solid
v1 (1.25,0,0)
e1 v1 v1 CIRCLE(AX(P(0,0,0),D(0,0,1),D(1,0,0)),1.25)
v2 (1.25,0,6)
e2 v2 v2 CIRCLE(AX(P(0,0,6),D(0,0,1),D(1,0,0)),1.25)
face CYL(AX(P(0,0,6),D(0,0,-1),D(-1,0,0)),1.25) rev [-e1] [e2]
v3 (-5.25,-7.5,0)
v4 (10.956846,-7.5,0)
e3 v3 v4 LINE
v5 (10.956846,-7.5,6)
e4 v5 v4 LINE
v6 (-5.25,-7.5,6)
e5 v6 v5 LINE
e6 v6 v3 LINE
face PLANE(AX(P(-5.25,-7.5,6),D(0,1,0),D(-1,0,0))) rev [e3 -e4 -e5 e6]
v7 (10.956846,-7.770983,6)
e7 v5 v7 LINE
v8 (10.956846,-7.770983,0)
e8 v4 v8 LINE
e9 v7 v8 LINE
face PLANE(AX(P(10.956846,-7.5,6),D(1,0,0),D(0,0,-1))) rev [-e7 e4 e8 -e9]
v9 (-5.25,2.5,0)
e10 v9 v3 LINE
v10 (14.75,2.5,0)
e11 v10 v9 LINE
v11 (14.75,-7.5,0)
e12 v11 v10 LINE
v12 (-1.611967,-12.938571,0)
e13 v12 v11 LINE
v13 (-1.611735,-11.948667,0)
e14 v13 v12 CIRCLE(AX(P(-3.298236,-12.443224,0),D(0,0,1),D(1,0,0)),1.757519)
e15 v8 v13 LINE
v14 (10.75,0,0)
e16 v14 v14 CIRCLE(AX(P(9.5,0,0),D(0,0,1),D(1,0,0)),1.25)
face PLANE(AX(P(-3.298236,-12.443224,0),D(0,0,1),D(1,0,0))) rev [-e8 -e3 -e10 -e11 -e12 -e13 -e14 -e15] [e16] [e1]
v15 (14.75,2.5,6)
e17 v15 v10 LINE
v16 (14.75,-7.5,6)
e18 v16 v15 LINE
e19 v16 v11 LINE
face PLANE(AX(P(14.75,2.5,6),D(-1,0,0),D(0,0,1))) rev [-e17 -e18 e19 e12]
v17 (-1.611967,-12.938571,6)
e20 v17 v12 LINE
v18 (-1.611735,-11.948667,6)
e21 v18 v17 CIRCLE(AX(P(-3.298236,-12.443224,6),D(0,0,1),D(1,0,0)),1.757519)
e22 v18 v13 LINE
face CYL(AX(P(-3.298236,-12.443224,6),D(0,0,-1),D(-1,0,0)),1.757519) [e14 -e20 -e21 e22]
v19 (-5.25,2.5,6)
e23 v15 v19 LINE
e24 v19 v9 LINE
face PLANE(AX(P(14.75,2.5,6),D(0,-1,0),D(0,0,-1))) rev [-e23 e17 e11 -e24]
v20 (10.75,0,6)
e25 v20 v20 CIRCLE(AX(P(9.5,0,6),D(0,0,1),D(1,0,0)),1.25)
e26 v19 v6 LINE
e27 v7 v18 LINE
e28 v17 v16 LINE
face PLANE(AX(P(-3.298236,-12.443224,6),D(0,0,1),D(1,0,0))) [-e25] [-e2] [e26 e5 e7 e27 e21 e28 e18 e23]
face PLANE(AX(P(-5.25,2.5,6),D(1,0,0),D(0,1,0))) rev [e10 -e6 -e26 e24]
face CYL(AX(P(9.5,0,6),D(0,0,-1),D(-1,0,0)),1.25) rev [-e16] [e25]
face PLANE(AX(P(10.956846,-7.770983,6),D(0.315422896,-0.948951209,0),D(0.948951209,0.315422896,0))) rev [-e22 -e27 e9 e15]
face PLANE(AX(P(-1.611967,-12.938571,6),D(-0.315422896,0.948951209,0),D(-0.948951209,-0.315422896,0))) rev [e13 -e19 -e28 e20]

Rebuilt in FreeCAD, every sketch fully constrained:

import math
import FreeCAD as App
import Part
import Sketcher
Q = App.Units.Quantity

doc = App.newDocument("Part")
params = doc.addObject("Spreadsheet::Sheet", "Params")
for row, (alias, value) in enumerate([
    ("sketch1_diameter", "2.5 mm"),
    ("sketch1_width", "20 mm"),
    ("sketch1_height", "10 mm"),
    ("pad1_length", "6 mm"),
], start=1):
    params.set(f"A{row}", alias)
    params.set(f"B{row}", "=" + value)
    params.setAlias(f"B{row}", alias)

body = doc.addObject("PartDesign::Body", "Body")

sketch1 = body.newObject("Sketcher::SketchObject", "Sketch")
sketch1.AttachmentSupport = (doc.getObject("XY_Plane"), [""])
sketch1.MapMode = "FlatFace"
sketch1.addGeometry([
    Part.LineSegment(App.Vector(14.75, 2.5, 0), App.Vector(-5.25, 2.5, 0)),
    Part.LineSegment(App.Vector(-5.25, 2.5, 0), App.Vector(-5.25, -7.5, 0)),
    Part.LineSegment(App.Vector(-5.25, -7.5, 0), App.Vector(10.96, -7.5, 0)),
    Part.LineSegment(App.Vector(10.96, -7.5, 0), App.Vector(10.96, -7.77, 0)),
    Part.LineSegment(App.Vector(10.96, -7.77, 0), App.Vector(-1.61, -11.95, 0)),
    Part.ArcOfCircle(Part.Circle(App.Vector(-3.3, -12.44, 0), App.Vector(0, 0, 1), 1.76), math.radians(16), math.radians(344)),
    Part.LineSegment(App.Vector(-1.61, -12.94, 0), App.Vector(14.75, -7.5, 0)),
    Part.LineSegment(App.Vector(14.75, -7.5, 0), App.Vector(14.75, 2.5, 0)),
    Part.Circle(App.Vector(0, 0, 0), App.Vector(0, 0, 1), 1.25),
    Part.Circle(App.Vector(9.5, 0, 0), App.Vector(0, 0, 1), 1.25),
], False)
sketch1.addConstraint([
    Sketcher.Constraint("Coincident", 0, 2, 1, 1),
    Sketcher.Constraint("Coincident", 1, 2, 2, 1),
    Sketcher.Constraint("Coincident", 2, 2, 3, 1),
    Sketcher.Constraint("Coincident", 3, 2, 4, 1),
    Sketcher.Constraint("Coincident", 4, 2, 5, 1),
    Sketcher.Constraint("Coincident", 5, 2, 6, 1),
    Sketcher.Constraint("Coincident", 6, 2, 7, 1),
    Sketcher.Constraint("Coincident", 7, 2, 0, 1),
    Sketcher.Constraint("Horizontal", 0),
    Sketcher.Constraint("Vertical", 1),
    Sketcher.Constraint("Horizontal", 2),
    Sketcher.Constraint("Vertical", 3),
    Sketcher.Constraint("Vertical", 7),
    Sketcher.Constraint("Coincident", 8, 3, -1, 1),
    Sketcher.Constraint("Equal", 8, 9),
    Sketcher.Constraint("PointOnObject", 9, 3, -1),
    Sketcher.Constraint("Parallel", 4, 6),
    Sketcher.Constraint("Horizontal", 2, 2, 6, 2),
    Sketcher.Constraint("Diameter", 8, Q("2.5 mm")),
    Sketcher.Constraint("DistanceX", 0, 2, 0, 1, Q("20 mm")),
    Sketcher.Constraint("DistanceY", 1, 2, 1, 1, Q("10 mm")),
    Sketcher.Constraint("DistanceX", -1, 1, 9, 3, Q("9.5 mm")),
    Sketcher.Constraint("DistanceY", -1, 1, 0, 2, Q("2.5 mm")),
    Sketcher.Constraint("DistanceX", 0, 2, -1, 1, Q("5.25 mm")),
    Sketcher.Constraint("Radius", 5, Q("1.757519 mm")),
    Sketcher.Constraint("DistanceX", 5, 3, 4, 2, Q("1.686501 mm")),
    Sketcher.Constraint("DistanceX", 2, 1, 2, 2, Q("16.206846 mm")),
    Sketcher.Constraint("DistanceY", 3, 2, 3, 1, Q("0.270983 mm")),
    Sketcher.Constraint("DistanceY", 5, 2, -1, 1, Q("12.938571 mm")),
    Sketcher.Constraint("DistanceY", 5, 3, 3, 2, Q("4.672241 mm")),
])
sketch1.setExpression("Constraints[18]", "Params.sketch1_diameter")
sketch1.setExpression("Constraints[19]", "Params.sketch1_width")
sketch1.setExpression("Constraints[20]", "Params.sketch1_height")
pad1 = body.newObject("PartDesign::Pad", "Pad")
pad1.Profile = sketch1
pad1.setExpression("Length", "Params.pad1_length")

doc.recompute()
